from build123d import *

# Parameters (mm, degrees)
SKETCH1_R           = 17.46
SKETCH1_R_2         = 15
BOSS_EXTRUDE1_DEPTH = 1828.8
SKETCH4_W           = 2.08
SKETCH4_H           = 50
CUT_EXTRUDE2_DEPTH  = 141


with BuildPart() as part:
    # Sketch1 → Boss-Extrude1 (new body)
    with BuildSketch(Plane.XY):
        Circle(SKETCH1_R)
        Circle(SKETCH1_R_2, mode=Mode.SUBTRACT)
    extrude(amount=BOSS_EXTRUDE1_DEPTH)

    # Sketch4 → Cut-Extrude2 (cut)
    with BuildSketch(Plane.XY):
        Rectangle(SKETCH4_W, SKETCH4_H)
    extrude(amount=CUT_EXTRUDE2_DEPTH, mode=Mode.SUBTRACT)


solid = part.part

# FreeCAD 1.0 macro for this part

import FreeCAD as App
import Part
import Sketcher

V = App.Vector

doc = App.newDocument("Part")
params = doc.addObject("Spreadsheet::Sheet", "Params")
for row, (alias, value) in enumerate([
    ("sketch1_diameter", "30 mm"),
    ("sketch1_diameter2", "34.92 mm"),
    ("pad1_length", "1828.8 mm"),
    ("sketch2_height", "50 mm"),
    ("sketch2_width", "2.08 mm"),
    ("pocket1_length", "141 mm"),
], start=1):
    params.set(f"A{row}", alias)
    params.set(f"B{row}", "=" + value)
    params.setAlias(f"B{row}", alias)

body = doc.addObject("PartDesign::Body", "Body")

sketch1 = body.newObject("Sketcher::SketchObject", "Sketch")
sketch1.AttachmentSupport = (doc.getObject("XY_Plane"), [""])
sketch1.MapMode = "FlatFace"
sketch1.addGeometry(Part.Circle(V(0, 0, 0), V(0, 0, 1), 17), False)
sketch1.addGeometry(Part.Circle(V(0, 0, 0), V(0, 0, 1), 15), False)
sketch1.addConstraint(Sketcher.Constraint("Coincident", 0, 3, -1, 1))
sketch1.addConstraint(Sketcher.Constraint("Coincident", 1, 3, -1, 1))
sketch1.addConstraint(Sketcher.Constraint("Diameter", 1, 30.0))
sketch1.addConstraint(Sketcher.Constraint("Diameter", 0, 34.92))
sketch1.setExpression("Constraints[2]", "Params.sketch1_diameter")
sketch1.setExpression("Constraints[3]", "Params.sketch1_diameter2")
pad1 = body.newObject("PartDesign::Pad", "Pad")
pad1.Profile = sketch1
pad1.setExpression("Length", "Params.pad1_length")

sketch2 = body.newObject("Sketcher::SketchObject", "Sketch001")
sketch2.AttachmentSupport = (doc.getObject("XY_Plane"), [""])
sketch2.MapMode = "FlatFace"
sketch2.addGeometry(Part.LineSegment(V(-1, 25, 0), V(-1, -25, 0)), False)
sketch2.addGeometry(Part.LineSegment(V(-1, -25, 0), V(1, -25, 0)), False)
sketch2.addGeometry(Part.LineSegment(V(1, -25, 0), V(1, 25, 0)), False)
sketch2.addGeometry(Part.LineSegment(V(1, 25, 0), V(-1, 25, 0)), False)
sketch2.addConstraint(Sketcher.Constraint("Coincident", 0, 2, 1, 1))
sketch2.addConstraint(Sketcher.Constraint("Coincident", 1, 2, 2, 1))
sketch2.addConstraint(Sketcher.Constraint("Coincident", 2, 2, 3, 1))
sketch2.addConstraint(Sketcher.Constraint("Coincident", 3, 2, 0, 1))
sketch2.addConstraint(Sketcher.Constraint("Vertical", 0))
sketch2.addConstraint(Sketcher.Constraint("Horizontal", 1))
sketch2.addConstraint(Sketcher.Constraint("Vertical", 2))
sketch2.addConstraint(Sketcher.Constraint("Horizontal", 3))
sketch2.addConstraint(Sketcher.Constraint("Symmetric", 0, 2, 2, 2, -1, 1))
sketch2.addConstraint(Sketcher.Constraint("DistanceY", 0, 2, 0, 1, 50.0))
sketch2.addConstraint(Sketcher.Constraint("DistanceX", 1, 1, 1, 2, 2.08))
sketch2.setExpression("Constraints[9]", "Params.sketch2_height")
sketch2.setExpression("Constraints[10]", "Params.sketch2_width")
pocket1 = body.newObject("PartDesign::Pocket", "Pocket")
pocket1.Profile = sketch2
pocket1.setExpression("Length", "Params.pocket1_length")
pocket1.Reversed = True

doc.recompute()
